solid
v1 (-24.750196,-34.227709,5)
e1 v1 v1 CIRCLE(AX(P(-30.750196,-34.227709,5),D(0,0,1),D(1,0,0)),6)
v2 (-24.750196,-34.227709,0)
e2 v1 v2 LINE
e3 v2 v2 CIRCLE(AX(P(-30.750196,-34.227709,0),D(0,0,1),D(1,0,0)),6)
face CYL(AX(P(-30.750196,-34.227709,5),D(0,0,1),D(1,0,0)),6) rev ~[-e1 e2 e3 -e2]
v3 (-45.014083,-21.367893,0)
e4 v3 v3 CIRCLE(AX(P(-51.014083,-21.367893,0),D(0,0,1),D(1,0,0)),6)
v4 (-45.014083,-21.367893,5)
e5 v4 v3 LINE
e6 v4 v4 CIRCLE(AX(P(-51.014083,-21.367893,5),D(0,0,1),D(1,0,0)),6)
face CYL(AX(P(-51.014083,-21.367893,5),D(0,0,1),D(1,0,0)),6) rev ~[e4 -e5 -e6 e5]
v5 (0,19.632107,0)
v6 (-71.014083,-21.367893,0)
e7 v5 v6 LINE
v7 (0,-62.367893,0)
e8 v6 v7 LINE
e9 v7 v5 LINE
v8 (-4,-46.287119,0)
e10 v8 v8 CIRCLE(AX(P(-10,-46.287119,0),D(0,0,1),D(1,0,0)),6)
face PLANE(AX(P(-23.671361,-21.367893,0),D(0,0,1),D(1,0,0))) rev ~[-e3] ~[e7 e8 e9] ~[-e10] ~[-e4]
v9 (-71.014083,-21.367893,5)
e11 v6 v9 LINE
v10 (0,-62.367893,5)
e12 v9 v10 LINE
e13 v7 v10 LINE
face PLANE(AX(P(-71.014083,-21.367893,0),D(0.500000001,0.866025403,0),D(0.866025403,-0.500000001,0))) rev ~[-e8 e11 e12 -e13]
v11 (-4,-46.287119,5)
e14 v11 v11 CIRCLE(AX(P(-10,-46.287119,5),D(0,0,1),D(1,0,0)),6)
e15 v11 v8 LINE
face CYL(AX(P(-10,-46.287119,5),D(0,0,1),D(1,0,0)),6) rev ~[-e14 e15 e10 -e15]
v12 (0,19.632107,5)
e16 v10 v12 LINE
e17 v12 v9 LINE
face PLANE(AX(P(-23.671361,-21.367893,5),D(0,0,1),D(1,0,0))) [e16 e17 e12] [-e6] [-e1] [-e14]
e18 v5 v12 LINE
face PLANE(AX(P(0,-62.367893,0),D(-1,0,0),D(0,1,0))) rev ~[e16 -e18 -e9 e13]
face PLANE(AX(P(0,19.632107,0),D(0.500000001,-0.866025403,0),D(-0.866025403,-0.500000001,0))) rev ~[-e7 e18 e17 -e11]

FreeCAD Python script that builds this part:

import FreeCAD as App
import Part
import Sketcher

V = App.Vector
Q = App.Units.Quantity

doc = App.newDocument("Part")
body = doc.addObject("PartDesign::Body", "Body")

# Sketch on XY plane
sketch1 = body.newObject("Sketcher::SketchObject", "Sketch")
sketch1.AttachmentSupport = (doc.getObject("XY_Plane"), [""])
sketch1.MapMode = "FlatFace"
sketch1.addGeometry(Part.LineSegment(V(0, -62.367893, 0), V(0, 19.632107, 0)), False)
sketch1.addGeometry(Part.LineSegment(V(0, 19.632107, 0), V(-71.014083, -21.367893, 0)), False)
sketch1.addGeometry(Part.LineSegment(V(-71.014083, -21.367893, 0), V(0, -62.367893, 0)), False)
sketch1.addConstraint(Sketcher.Constraint("Coincident", 0, 2, 1, 1))
sketch1.addConstraint(Sketcher.Constraint("Coincident", 1, 2, 2, 1))
sketch1.addConstraint(Sketcher.Constraint("Coincident", 2, 2, 0, 1))
sketch1.addConstraint(Sketcher.Constraint("Vertical", 0))
sketch1.addConstraint(Sketcher.Constraint("PointOnObject", 0, 2, -2))
sketch1.addConstraint(Sketcher.Constraint("Equal", 1, 2))
sketch1.addConstraint(Sketcher.Constraint("DistanceY", 0, 1, 0, 2, Q("82 mm")))
sketch1.addConstraint(Sketcher.Constraint("Angle", 1, Q("-150 deg")))
sketch1.addConstraint(Sketcher.Constraint("DistanceY", -1, 1, 0, 2, Q("19.632107 mm")))
pad1 = body.newObject("PartDesign::Pad", "Pad")
pad1.Profile = sketch1
pad1.Length = 5

# Sketch on XY plane
sketch2 = body.newObject("Sketcher::SketchObject", "Sketch001")
sketch2.AttachmentSupport = (doc.getObject("XY_Plane"), [""])
sketch2.MapMode = "FlatFace"
sketch2.AttachmentOffset = App.Placement(V(0, 0, 5), App.Rotation())
sketch2.addGeometry(Part.Circle(V(-51.014083, -21.367893, 0), V(0, 0, 1), 6), False)
sketch2.addGeometry(Part.Circle(V(-30.750196, -34.227709, 0), V(0, 0, 1), 6), False)
sketch2.addGeometry(Part.Circle(V(-10, -46.287119, 0), V(0, 0, 1), 6), False)
sketch2.addConstraint(Sketcher.Constraint("Equal", 0, 1))
sketch2.addConstraint(Sketcher.Constraint("Equal", 1, 2))
sketch2.addConstraint(Sketcher.Constraint("Diameter", 0, Q("12 mm")))
sketch2.addConstraint(Sketcher.Constraint("DistanceX", 2, 3, -1, 1, Q("10 mm")))
sketch2.addConstraint(Sketcher.Constraint("DistanceY", 1, 3, -1, 1, Q("34.227709 mm")))
sketch2.addConstraint(Sketcher.Constraint("DistanceY", 2, 3, -1, 1, Q("46.287119 mm")))
sketch2.addConstraint(Sketcher.Constraint("DistanceX", 0, 3, -1, 1, Q("51.014083 mm")))
sketch2.addConstraint(Sketcher.Constraint("DistanceY", 0, 3, -1, 1, Q("21.367893 mm")))
sketch2.addConstraint(Sketcher.Constraint("DistanceX", 1, 3, -1, 1, Q("30.750196 mm")))
pocket1 = body.newObject("PartDesign::Pocket", "Pocket")
pocket1.Profile = sketch2
pocket1.Type = "ThroughAll"

doc.recompute()
